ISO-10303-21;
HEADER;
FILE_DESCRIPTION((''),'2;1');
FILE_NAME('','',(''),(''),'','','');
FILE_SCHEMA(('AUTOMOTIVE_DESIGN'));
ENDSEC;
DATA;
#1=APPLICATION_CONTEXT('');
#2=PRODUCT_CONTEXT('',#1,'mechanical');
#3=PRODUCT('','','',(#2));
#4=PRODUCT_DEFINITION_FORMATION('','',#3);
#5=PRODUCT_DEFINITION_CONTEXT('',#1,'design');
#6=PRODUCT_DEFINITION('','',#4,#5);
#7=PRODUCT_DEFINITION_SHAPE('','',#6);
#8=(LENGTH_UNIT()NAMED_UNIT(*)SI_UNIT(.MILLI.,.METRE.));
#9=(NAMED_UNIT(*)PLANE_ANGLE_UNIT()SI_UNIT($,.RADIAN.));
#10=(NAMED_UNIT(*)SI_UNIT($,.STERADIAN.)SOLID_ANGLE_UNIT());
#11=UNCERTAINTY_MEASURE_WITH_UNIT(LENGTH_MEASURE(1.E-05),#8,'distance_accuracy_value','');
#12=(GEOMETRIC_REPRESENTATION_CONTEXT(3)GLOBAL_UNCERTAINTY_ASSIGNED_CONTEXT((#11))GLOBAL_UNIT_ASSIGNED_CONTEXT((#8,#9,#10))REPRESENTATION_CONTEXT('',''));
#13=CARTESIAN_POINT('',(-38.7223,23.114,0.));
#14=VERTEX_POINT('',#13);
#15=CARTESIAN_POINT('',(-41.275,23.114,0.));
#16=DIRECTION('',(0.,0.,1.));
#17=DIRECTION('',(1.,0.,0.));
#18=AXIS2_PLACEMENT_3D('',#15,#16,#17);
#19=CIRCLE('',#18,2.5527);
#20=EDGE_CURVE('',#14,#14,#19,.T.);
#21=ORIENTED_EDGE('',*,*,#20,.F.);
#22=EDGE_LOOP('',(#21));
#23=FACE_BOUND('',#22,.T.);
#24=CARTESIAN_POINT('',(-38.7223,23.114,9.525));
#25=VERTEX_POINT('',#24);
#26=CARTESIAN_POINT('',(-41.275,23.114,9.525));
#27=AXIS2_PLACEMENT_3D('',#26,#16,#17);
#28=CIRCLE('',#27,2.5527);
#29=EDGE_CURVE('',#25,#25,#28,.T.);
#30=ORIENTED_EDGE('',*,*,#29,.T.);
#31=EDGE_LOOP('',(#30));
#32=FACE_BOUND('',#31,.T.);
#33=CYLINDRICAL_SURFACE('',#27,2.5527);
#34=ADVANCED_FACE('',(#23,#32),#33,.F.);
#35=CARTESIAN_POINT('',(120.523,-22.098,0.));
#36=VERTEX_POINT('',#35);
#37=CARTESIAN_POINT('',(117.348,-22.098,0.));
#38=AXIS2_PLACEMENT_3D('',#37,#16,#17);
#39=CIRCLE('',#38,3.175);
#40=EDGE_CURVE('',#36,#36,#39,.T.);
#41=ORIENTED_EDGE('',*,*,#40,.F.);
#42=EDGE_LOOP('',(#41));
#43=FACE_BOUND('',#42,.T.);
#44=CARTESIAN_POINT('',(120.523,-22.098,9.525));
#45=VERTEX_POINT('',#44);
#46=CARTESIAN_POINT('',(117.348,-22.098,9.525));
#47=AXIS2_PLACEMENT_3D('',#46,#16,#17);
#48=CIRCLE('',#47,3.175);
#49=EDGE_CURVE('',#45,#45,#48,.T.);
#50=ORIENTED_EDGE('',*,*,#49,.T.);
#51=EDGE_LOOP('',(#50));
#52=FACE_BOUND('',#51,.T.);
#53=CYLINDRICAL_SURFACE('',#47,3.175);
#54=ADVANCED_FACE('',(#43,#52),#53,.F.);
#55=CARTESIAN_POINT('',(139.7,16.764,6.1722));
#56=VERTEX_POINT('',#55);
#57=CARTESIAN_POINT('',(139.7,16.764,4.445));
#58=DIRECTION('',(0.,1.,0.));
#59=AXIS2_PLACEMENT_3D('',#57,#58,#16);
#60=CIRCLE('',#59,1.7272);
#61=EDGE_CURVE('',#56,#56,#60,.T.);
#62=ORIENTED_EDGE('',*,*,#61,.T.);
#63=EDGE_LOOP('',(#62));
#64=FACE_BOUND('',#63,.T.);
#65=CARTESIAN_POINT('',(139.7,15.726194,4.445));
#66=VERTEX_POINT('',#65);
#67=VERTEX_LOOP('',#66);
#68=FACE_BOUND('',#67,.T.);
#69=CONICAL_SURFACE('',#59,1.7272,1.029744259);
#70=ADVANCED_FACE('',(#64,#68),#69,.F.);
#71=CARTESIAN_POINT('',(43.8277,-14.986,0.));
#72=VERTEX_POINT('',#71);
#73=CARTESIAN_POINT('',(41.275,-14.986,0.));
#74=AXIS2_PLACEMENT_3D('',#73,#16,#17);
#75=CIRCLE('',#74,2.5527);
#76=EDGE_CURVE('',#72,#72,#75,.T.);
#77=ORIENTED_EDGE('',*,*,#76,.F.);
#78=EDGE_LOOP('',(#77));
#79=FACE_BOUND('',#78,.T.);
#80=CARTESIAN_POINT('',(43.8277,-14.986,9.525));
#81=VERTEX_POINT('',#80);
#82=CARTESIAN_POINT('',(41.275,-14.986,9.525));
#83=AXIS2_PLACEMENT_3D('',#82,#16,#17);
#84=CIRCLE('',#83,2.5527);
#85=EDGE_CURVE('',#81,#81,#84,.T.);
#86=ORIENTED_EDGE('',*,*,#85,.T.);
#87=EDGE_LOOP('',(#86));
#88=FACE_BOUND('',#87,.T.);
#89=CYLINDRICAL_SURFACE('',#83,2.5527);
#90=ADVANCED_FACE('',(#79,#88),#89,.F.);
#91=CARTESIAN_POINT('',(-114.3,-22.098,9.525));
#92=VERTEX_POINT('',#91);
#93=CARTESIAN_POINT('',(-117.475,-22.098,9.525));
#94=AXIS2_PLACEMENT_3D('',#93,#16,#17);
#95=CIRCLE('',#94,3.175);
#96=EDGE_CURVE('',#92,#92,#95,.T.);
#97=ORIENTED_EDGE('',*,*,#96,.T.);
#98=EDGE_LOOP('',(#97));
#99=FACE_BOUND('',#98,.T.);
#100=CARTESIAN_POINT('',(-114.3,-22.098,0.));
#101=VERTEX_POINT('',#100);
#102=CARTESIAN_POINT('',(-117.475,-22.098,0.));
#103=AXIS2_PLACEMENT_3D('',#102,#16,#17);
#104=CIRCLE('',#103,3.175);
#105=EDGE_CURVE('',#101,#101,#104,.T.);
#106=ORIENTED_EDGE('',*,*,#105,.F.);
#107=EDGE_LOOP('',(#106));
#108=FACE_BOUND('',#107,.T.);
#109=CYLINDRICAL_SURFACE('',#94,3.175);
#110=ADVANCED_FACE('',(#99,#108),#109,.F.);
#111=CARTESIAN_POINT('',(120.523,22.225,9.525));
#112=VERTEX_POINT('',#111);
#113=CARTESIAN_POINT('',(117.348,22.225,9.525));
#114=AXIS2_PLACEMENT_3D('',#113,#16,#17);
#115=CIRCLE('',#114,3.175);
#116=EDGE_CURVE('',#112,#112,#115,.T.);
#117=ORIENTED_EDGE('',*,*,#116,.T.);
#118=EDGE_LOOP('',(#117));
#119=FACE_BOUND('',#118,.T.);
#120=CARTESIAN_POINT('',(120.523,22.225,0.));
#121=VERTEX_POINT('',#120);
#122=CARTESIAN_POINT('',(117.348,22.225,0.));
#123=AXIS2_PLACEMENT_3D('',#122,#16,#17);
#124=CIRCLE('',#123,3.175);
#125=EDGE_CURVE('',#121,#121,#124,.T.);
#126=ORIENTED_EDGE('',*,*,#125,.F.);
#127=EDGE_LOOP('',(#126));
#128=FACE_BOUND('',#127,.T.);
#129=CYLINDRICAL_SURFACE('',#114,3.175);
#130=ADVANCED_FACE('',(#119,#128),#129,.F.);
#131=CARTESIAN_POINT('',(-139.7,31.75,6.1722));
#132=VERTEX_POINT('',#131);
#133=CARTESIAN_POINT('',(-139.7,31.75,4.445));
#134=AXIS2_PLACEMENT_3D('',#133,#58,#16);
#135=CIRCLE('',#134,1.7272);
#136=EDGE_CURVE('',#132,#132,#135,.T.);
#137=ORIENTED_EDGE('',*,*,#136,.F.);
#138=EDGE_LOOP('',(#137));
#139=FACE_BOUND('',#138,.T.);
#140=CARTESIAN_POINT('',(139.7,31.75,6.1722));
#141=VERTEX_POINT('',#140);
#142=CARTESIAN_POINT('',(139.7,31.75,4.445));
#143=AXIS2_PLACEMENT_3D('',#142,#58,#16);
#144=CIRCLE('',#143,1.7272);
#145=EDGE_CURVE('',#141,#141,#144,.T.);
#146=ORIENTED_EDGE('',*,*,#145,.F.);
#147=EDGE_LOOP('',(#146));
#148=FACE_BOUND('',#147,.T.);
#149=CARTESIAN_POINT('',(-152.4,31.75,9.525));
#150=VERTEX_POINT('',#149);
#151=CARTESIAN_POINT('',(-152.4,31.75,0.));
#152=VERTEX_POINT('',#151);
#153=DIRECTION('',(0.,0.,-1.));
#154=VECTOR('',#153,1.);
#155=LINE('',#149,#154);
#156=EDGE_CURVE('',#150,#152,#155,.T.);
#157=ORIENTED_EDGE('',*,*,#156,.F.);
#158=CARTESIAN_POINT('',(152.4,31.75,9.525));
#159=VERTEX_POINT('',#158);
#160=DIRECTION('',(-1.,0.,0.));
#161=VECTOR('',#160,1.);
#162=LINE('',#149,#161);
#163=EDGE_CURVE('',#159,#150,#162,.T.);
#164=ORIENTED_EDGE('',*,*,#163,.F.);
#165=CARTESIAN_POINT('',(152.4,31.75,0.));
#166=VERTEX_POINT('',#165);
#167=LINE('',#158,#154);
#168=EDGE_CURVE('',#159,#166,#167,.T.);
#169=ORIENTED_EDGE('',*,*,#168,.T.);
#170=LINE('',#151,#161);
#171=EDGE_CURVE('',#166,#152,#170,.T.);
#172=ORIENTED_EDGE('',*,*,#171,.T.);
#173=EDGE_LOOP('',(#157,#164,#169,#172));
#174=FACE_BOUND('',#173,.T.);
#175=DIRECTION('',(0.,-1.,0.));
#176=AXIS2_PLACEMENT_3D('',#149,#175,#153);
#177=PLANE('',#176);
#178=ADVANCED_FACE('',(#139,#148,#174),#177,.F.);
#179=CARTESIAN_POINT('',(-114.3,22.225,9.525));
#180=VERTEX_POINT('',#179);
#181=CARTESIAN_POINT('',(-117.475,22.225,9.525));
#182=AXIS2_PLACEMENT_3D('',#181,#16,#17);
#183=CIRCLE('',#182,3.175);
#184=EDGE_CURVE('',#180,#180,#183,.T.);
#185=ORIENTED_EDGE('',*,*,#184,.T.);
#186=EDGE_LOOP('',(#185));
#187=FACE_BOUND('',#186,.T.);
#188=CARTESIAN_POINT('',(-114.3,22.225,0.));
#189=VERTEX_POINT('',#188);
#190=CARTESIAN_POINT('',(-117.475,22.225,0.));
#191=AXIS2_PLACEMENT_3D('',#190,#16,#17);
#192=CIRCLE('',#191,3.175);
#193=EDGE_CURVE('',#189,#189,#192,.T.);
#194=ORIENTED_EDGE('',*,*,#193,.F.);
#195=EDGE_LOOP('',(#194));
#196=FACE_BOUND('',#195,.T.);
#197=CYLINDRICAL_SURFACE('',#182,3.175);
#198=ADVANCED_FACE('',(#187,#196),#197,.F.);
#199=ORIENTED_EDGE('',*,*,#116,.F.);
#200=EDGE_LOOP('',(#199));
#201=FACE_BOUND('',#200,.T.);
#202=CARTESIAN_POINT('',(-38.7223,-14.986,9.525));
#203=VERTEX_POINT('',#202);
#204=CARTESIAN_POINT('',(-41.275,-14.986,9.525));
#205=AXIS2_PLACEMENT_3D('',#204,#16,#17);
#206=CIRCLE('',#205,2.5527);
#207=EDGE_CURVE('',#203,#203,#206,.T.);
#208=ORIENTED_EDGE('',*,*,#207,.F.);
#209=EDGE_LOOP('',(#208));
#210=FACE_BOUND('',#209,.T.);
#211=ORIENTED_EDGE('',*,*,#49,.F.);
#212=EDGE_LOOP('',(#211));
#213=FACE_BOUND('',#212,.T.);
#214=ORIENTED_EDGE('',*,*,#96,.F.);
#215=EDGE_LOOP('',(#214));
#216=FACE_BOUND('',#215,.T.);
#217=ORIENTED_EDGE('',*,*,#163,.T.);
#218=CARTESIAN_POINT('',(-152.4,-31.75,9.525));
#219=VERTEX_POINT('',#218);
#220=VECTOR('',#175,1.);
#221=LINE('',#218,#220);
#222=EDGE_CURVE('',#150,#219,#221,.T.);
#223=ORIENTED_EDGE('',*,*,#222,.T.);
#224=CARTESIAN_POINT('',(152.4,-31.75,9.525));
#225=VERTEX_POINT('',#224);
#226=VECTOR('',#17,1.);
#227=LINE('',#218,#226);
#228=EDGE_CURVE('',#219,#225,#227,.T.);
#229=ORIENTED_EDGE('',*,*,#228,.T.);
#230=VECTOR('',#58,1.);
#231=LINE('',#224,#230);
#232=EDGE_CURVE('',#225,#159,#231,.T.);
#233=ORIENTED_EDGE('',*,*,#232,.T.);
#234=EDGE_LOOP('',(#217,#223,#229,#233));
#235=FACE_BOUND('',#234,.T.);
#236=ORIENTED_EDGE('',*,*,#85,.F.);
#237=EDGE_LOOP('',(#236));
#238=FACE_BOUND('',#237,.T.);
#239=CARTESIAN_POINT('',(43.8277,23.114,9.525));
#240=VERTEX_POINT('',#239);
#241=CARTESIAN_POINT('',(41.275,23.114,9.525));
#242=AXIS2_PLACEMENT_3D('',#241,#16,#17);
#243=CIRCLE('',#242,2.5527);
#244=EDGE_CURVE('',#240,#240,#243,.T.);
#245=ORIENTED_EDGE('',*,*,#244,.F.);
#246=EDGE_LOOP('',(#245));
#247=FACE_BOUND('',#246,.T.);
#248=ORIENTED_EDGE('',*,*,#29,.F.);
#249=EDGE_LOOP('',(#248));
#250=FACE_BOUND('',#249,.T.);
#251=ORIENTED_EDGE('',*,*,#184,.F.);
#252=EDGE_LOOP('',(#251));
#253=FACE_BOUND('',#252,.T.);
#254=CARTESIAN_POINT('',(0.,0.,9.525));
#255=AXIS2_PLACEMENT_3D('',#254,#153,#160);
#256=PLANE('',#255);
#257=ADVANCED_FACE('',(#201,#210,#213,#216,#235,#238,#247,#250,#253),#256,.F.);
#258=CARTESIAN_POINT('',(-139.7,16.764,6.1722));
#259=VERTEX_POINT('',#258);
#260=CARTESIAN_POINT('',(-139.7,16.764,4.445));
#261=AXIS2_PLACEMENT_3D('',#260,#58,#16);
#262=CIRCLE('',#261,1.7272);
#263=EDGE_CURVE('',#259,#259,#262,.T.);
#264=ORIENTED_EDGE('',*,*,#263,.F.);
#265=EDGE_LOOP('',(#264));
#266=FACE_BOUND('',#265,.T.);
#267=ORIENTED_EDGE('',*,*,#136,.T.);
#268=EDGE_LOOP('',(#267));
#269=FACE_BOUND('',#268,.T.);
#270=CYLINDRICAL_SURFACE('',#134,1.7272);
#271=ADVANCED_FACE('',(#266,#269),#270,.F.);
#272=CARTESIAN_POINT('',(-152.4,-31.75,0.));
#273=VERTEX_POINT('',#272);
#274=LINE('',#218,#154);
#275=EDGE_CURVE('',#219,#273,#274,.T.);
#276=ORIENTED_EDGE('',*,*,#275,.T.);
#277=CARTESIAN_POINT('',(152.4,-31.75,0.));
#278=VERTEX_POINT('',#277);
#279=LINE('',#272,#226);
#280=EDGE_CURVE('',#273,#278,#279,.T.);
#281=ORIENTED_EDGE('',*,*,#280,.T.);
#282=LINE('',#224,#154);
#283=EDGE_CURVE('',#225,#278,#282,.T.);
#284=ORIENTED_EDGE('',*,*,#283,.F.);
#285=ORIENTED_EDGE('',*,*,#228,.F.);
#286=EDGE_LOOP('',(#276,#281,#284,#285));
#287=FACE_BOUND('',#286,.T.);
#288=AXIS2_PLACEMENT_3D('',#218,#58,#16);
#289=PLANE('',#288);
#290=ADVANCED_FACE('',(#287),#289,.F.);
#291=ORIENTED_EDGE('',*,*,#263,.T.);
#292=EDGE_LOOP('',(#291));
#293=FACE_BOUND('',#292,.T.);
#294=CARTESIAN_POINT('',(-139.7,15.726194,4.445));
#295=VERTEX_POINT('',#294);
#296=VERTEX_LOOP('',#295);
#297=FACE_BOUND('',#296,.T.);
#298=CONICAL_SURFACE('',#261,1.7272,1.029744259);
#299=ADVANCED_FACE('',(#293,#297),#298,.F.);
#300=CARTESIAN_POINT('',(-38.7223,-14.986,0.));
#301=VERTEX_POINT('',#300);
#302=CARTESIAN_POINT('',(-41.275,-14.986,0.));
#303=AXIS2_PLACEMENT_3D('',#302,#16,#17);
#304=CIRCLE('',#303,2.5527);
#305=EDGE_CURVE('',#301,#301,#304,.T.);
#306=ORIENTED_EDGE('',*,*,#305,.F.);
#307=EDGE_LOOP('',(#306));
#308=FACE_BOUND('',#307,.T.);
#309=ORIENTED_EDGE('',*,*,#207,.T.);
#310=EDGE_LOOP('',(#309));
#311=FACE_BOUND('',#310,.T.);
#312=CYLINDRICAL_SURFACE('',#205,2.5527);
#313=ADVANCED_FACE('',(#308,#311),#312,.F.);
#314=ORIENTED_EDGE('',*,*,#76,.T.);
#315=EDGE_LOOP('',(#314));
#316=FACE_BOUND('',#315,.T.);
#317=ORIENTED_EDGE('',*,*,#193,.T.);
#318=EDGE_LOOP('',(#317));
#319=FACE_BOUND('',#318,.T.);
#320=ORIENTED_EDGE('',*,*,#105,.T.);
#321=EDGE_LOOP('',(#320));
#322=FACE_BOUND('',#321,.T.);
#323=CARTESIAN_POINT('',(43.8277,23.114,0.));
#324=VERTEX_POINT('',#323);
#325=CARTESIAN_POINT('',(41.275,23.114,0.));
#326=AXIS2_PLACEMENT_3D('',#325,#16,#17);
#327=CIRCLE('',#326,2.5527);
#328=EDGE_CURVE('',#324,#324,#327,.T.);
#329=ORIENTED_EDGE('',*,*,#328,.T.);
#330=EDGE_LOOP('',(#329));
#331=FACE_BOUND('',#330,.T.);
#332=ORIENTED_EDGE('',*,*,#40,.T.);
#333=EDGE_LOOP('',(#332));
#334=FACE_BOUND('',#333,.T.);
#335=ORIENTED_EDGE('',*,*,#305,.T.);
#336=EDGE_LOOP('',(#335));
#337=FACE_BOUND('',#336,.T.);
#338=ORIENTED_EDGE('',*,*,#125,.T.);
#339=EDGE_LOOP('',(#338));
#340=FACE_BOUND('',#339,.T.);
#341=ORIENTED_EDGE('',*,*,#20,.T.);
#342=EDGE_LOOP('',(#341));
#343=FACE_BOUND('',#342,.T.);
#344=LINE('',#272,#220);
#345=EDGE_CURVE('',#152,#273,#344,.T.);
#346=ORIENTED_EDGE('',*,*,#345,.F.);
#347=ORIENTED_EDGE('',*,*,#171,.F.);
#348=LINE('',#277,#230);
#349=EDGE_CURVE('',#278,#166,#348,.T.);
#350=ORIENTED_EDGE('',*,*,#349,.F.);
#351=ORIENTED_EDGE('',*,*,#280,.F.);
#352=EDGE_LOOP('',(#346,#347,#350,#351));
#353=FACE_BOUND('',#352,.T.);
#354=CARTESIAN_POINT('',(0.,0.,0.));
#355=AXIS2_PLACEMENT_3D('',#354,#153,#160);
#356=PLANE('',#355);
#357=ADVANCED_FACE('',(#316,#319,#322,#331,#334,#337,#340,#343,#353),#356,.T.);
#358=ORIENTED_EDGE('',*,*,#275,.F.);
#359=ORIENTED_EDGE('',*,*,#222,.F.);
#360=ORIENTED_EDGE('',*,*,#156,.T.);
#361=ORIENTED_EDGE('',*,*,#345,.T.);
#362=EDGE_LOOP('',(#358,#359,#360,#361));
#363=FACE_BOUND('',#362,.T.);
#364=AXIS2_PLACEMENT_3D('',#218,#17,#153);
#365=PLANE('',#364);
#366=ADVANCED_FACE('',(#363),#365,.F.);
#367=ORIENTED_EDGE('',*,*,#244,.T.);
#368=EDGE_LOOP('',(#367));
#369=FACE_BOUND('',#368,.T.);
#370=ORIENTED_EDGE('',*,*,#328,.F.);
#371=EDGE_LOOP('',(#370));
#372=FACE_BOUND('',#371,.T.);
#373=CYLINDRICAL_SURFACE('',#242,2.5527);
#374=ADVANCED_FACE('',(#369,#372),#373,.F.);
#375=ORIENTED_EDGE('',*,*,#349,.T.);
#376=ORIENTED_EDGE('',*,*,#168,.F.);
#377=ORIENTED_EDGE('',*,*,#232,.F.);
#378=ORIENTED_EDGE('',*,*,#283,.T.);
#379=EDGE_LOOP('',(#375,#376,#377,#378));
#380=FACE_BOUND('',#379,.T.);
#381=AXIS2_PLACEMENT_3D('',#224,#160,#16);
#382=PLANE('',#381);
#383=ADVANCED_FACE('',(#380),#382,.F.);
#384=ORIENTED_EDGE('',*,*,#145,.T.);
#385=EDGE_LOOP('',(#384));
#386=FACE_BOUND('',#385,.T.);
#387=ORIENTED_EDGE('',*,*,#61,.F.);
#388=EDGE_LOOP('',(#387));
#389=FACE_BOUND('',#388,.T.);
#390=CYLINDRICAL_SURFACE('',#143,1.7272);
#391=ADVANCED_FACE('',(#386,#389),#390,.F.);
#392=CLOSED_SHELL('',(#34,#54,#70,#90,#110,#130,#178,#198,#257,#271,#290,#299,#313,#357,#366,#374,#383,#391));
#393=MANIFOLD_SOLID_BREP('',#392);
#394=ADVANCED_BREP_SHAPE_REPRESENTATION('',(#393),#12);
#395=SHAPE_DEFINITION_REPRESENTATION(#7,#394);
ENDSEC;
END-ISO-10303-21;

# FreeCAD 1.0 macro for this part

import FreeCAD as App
import Part
import Sketcher

V = App.Vector
Q = App.Units.Quantity

doc = App.newDocument("Part")
params = doc.addObject("Spreadsheet::Sheet", "Params")
for row, (alias, value) in enumerate([
    ("sketch1_width", "12 in"),
    ("sketch1_height", "2.5 in"),
    ("pad1_length", "0.375 in"),
    ("sketch2_diameter", "0.201 in"),
    ("hole_diameter", "0.201 in"),
    ("sketch3_diameter", "0.25 in"),
    ("hole2_diameter", "0.25 in"),
    ("sketch4_diameter", "0.136 in"),
    ("hole3_diameter", "0.136 in"),
    ("hole3_depth", "0.59 in"),
], start=1):
    params.set(f"A{row}", alias)
    params.set(f"B{row}", "=" + value)
    params.setAlias(f"B{row}", alias)

body = doc.addObject("PartDesign::Body", "Body")

sketch1 = body.newObject("Sketcher::SketchObject", "Sketch")
sketch1.AttachmentSupport = (doc.getObject("XY_Plane"), [""])
sketch1.MapMode = "FlatFace"
sketch1.addGeometry(Part.LineSegment(V(-152, 32, 0), V(-152, -32, 0)), False)
sketch1.addGeometry(Part.LineSegment(V(-152, -32, 0), V(152, -32, 0)), False)
sketch1.addGeometry(Part.LineSegment(V(152, -32, 0), V(152, 32, 0)), False)
sketch1.addGeometry(Part.LineSegment(V(152, 32, 0), V(-152, 32, 0)), False)
sketch1.addConstraint(Sketcher.Constraint("Coincident", 0, 2, 1, 1))
sketch1.addConstraint(Sketcher.Constraint("Coincident", 1, 2, 2, 1))
sketch1.addConstraint(Sketcher.Constraint("Coincident", 2, 2, 3, 1))
sketch1.addConstraint(Sketcher.Constraint("Coincident", 3, 2, 0, 1))
sketch1.addConstraint(Sketcher.Constraint("Vertical", 0))
sketch1.addConstraint(Sketcher.Constraint("Horizontal", 1))
sketch1.addConstraint(Sketcher.Constraint("Vertical", 2))
sketch1.addConstraint(Sketcher.Constraint("Horizontal", 3))
sketch1.addConstraint(Sketcher.Constraint("Symmetric", 0, 2, 2, 2, -1, 1))
sketch1.addConstraint(Sketcher.Constraint("DistanceX", 1, 1, 1, 2, Q("12 in")))
sketch1.addConstraint(Sketcher.Constraint("DistanceY", 0, 2, 0, 1, Q("2.5 in")))
sketch1.setExpression("Constraints[9]", "Params.sketch1_width")
sketch1.setExpression("Constraints[10]", "Params.sketch1_height")
pad1 = body.newObject("PartDesign::Pad", "Pad")
pad1.Profile = sketch1
pad1.setExpression("Length", "Params.pad1_length")

sketch2 = body.newObject("Sketcher::SketchObject", "Sketch001")
sketch2.AttachmentSupport = (doc.getObject("XY_Plane"), [""])
sketch2.MapMode = "FlatFace"
sketch2.AttachmentOffset = App.Placement(V(0, 0, 0.375 * 25.4), App.Rotation())
sketch2.addGeometry(Part.Circle(V(-41.3, 23.1, 0), V(0, 0, 1), 2.6), False)
sketch2.addGeometry(Part.Circle(V(41.3, 23.1, 0), V(0, 0, 1), 2.6), False)
sketch2.addGeometry(Part.Circle(V(41.3, -15, 0), V(0, 0, 1), 2.6), False)
sketch2.addGeometry(Part.Circle(V(-41.3, -15, 0), V(0, 0, 1), 2.6), False)
sketch2.addConstraint(Sketcher.Constraint("Equal", 0, 1))
sketch2.addConstraint(Sketcher.Constraint("Equal", 1, 2))
sketch2.addConstraint(Sketcher.Constraint("Equal", 2, 3))
sketch2.addConstraint(Sketcher.Constraint("Symmetric", 0, 3, 1, 3, -2))
sketch2.addConstraint(Sketcher.Constraint("Symmetric", 2, 3, 3, 3, -2))
sketch2.addConstraint(Sketcher.Constraint("Vertical", 1, 3, 2, 3))
sketch2.addConstraint(Sketcher.Constraint("Diameter", 0, Q("0.201 in")))
sketch2.addConstraint(Sketcher.Constraint("DistanceY", 2, 3, 1, 3, Q("1.5 in")))
sketch2.addConstraint(Sketcher.Constraint("DistanceY", -1, 1, 0, 3, Q("0.91 in")))
sketch2.addConstraint(Sketcher.Constraint("DistanceX", 0, 3, 1, 3, Q("3.25 in")))
sketch2.setExpression("Constraints[6]", "Params.sketch2_diameter")
doc.recompute()
hole = body.newObject("PartDesign::Hole", "Hole")
hole.Profile = sketch2
hole.ThreadType = "None"
hole.setExpression("Diameter", "Params.hole_diameter")
hole.DepthType = "ThroughAll"

sketch3 = body.newObject("Sketcher::SketchObject", "Sketch002")
sketch3.AttachmentSupport = (doc.getObject("XY_Plane"), [""])
sketch3.MapMode = "FlatFace"
sketch3.AttachmentOffset = App.Placement(V(0, 0, 0.375 * 25.4), App.Rotation())
sketch3.addGeometry(Part.Circle(V(-117.5, 22.2, 0), V(0, 0, 1), 3.2), False)
sketch3.addGeometry(Part.Circle(V(-117.5, -22.1, 0), V(0, 0, 1), 3.2), False)
sketch3.addGeometry(Part.Circle(V(117.3, -22.1, 0), V(0, 0, 1), 3.2), False)
sketch3.addGeometry(Part.Circle(V(117.3, 22.2, 0), V(0, 0, 1), 3.2), False)
sketch3.addConstraint(Sketcher.Constraint("Equal", 0, 1))
sketch3.addConstraint(Sketcher.Constraint("Equal", 1, 2))
sketch3.addConstraint(Sketcher.Constraint("Equal", 2, 3))
sketch3.addConstraint(Sketcher.Constraint("Horizontal", 1, 3, 2, 3))
sketch3.addConstraint(Sketcher.Constraint("Horizontal", 0, 3, 3, 3))
sketch3.addConstraint(Sketcher.Constraint("Vertical", 0, 3, 1, 3))
sketch3.addConstraint(Sketcher.Constraint("Vertical", 2, 3, 3, 3))
sketch3.addConstraint(Sketcher.Constraint("Diameter", 0, Q("0.25 in")))
sketch3.addConstraint(Sketcher.Constraint("DistanceY", 1, 3, -1, 1, Q("0.87 in")))
sketch3.addConstraint(Sketcher.Constraint("DistanceX", -1, 1, 2, 3, Q("4.62 in")))
sketch3.addConstraint(Sketcher.Constraint("DistanceX", 0, 3, -1, 1, Q("4.625 in")))
sketch3.addConstraint(Sketcher.Constraint("DistanceY", -1, 1, 0, 3, Q("0.875 in")))
sketch3.setExpression("Constraints[7]", "Params.sketch3_diameter")
doc.recompute()
hole2 = body.newObject("PartDesign::Hole", "Hole001")
hole2.Profile = sketch3
hole2.ThreadType = "None"
hole2.setExpression("Diameter", "Params.hole2_diameter")
hole2.DepthType = "ThroughAll"

sketch4 = body.newObject("Sketcher::SketchObject", "Sketch003")
sketch4.AttachmentSupport = (doc.getObject("XZ_Plane"), [""])
sketch4.MapMode = "FlatFace"
sketch4.AttachmentOffset = App.Placement(V(0, 0, -1.25 * 25.4), App.Rotation())
sketch4.addGeometry(Part.Circle(V(-139.7, 4.4, 0), V(0, 0, 1), 1.7), False)
sketch4.addGeometry(Part.Circle(V(139.7, 4.4, 0), V(0, 0, 1), 1.7), False)
sketch4.addConstraint(Sketcher.Constraint("Equal", 0, 1))
sketch4.addConstraint(Sketcher.Constraint("Symmetric", 0, 3, 1, 3, -2))
sketch4.addConstraint(Sketcher.Constraint("Diameter", 0, Q("0.136 in")))
sketch4.addConstraint(Sketcher.Constraint("DistanceX", 0, 3, 1, 3, Q("11 in")))
sketch4.addConstraint(Sketcher.Constraint("DistanceY", -1, 1, 0, 3, Q("0.175 in")))
sketch4.setExpression("Constraints[2]", "Params.sketch4_diameter")
doc.recompute()
hole3 = body.newObject("PartDesign::Hole", "Hole002")
hole3.Profile = sketch4
hole3.ThreadType = "None"
hole3.setExpression("Diameter", "Params.hole3_diameter")
hole3.DepthType = "Dimension"
hole3.setExpression("Depth", "Params.hole3_depth")
hole3.DrillPoint = "Angled"
hole3.DrillPointAngle = 118
hole3.Reversed = True

doc.recompute()
